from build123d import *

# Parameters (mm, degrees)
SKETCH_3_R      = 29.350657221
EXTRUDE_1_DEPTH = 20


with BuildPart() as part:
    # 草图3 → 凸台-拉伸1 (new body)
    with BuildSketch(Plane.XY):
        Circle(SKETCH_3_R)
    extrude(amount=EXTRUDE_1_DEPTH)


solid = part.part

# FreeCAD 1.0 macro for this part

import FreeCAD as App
import Part
import Sketcher

V = App.Vector

doc = App.newDocument("Part")
body = doc.addObject("PartDesign::Body", "Body")

# Sketch on XY plane
sketch1 = body.newObject("Sketcher::SketchObject", "Sketch")
sketch1.AttachmentSupport = (doc.getObject("XY_Plane"), [""])
sketch1.MapMode = "FlatFace"
sketch1.addGeometry(Part.Circle(V(0, 0, 0), V(0, 0, 1), 29), False)
sketch1.addConstraint(Sketcher.Constraint("Coincident", 0, 3, -1, 1))
sketch1.addConstraint(Sketcher.Constraint("Diameter", 0, 58.701314))
pad1 = body.newObject("PartDesign::Pad", "Pad")
pad1.Profile = sketch1
pad1.Length = 20

doc.recompute()
